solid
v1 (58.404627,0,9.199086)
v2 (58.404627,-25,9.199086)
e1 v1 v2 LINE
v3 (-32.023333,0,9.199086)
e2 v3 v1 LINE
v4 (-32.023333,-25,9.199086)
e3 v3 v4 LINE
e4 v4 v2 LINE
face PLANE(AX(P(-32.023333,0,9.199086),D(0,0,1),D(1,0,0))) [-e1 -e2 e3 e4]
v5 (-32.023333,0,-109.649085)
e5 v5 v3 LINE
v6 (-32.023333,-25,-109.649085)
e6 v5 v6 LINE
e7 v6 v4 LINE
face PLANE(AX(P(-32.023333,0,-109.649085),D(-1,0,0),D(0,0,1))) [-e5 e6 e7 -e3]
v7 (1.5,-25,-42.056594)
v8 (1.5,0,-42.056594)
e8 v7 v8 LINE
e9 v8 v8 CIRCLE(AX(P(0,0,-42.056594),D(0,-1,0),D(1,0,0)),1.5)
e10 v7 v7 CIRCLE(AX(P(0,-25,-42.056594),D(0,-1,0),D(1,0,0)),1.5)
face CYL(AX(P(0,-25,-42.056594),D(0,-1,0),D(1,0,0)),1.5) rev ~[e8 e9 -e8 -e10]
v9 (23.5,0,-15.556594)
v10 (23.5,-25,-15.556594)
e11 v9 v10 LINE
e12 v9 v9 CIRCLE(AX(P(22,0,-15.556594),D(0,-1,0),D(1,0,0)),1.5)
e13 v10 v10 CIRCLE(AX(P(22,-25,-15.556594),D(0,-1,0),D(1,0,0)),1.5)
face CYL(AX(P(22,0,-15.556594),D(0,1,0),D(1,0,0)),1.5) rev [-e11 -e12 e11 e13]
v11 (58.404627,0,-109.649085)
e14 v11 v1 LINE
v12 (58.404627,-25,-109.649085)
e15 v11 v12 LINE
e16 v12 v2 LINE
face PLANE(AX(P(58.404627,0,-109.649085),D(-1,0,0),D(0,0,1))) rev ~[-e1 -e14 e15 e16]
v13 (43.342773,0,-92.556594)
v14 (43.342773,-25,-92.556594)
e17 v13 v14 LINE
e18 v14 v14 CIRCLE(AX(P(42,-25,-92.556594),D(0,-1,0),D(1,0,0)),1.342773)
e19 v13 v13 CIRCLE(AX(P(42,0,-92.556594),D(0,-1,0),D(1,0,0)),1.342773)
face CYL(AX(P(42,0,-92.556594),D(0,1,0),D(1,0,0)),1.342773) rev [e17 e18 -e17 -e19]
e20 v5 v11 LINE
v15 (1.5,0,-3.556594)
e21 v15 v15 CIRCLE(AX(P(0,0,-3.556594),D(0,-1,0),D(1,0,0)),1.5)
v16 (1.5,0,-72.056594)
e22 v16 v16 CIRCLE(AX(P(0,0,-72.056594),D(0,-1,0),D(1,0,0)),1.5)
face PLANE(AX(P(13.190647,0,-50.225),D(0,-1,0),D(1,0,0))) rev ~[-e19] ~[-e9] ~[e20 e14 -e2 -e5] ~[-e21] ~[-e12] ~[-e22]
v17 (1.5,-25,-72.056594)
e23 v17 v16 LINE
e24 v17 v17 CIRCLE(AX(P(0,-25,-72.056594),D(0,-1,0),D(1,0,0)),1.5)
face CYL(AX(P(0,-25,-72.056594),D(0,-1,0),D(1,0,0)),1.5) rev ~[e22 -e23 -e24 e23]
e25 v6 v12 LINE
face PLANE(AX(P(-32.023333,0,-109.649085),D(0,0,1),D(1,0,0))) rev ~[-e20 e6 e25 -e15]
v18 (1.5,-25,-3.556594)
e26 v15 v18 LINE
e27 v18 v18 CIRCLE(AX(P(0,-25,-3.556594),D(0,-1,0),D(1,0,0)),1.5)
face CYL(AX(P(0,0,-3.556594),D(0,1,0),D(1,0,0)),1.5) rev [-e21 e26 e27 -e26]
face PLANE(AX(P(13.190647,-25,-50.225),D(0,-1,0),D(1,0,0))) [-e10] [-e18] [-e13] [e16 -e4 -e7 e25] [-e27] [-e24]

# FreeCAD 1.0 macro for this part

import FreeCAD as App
import Part
import Sketcher

doc = App.newDocument("Part")
body = doc.addObject("PartDesign::Body", "Body")

sketch1 = body.newObject("Sketcher::SketchObject", "Sketch")
sketch1.AttachmentSupport = (doc.getObject("XZ_Plane"), [""])
sketch1.MapMode = "FlatFace"
sketch1.addGeometry([
    Part.LineSegment(App.Vector(-32, 9.2, 0), App.Vector(-32, -109.6, 0)),
    Part.LineSegment(App.Vector(-32, -109.6, 0), App.Vector(58.4, -109.6, 0)),
    Part.LineSegment(App.Vector(58.4, -109.6, 0), App.Vector(58.4, 9.2, 0)),
    Part.LineSegment(App.Vector(58.4, 9.2, 0), App.Vector(-32, 9.2, 0)),
    Part.Circle(App.Vector(42, -92.6, 0), App.Vector(0, 0, 1), 1.3),
    Part.Circle(App.Vector(0, -3.6, 0), App.Vector(0, 0, 1), 1.5),
    Part.Circle(App.Vector(22, -15.6, 0), App.Vector(0, 0, 1), 1.5),
], False)
sketch1.addConstraint([
    Sketcher.Constraint("Coincident", 0, 2, 1, 1),
    Sketcher.Constraint("Coincident", 1, 2, 2, 1),
    Sketcher.Constraint("Coincident", 2, 2, 3, 1),
    Sketcher.Constraint("Coincident", 3, 2, 0, 1),
    Sketcher.Constraint("Vertical", 0),
    Sketcher.Constraint("Horizontal", 1),
    Sketcher.Constraint("Vertical", 2),
    Sketcher.Constraint("Horizontal", 3),
    Sketcher.Constraint("Equal", 5, 6),
    Sketcher.Constraint("PointOnObject", 5, 3, -2),
    Sketcher.Constraint("Diameter", 5, 3.0),
    Sketcher.Constraint("DistanceX", -1, 1, 4, 3, 42.0),
    Sketcher.Constraint("DistanceX", -1, 1, 6, 3, 22.0),
    Sketcher.Constraint("DistanceY", 4, 3, 5, 3, 89.0),
    Sketcher.Constraint("DistanceY", 6, 3, 5, 3, 12.0),
    Sketcher.Constraint("Diameter", 4, 2.685546),
    Sketcher.Constraint("DistanceX", 1, 1, 1, 2, 90.427961),
    Sketcher.Constraint("DistanceY", 0, 2, 0, 1, 118.848171),
    Sketcher.Constraint("DistanceY", 0, 2, 4, 3, 17.092491),
    Sketcher.Constraint("DistanceY", 4, 3, -1, 1, 92.556594),
    Sketcher.Constraint("DistanceX", 0, 2, -1, 1, 32.023333),
])
pad1 = body.newObject("PartDesign::Pad", "Pad")
pad1.Profile = sketch1
pad1.Length = 25

sketch2 = body.newObject("Sketcher::SketchObject", "Sketch001")
sketch2.AttachmentSupport = (doc.getObject("XZ_Plane"), [""])
sketch2.MapMode = "FlatFace"
sketch2.AttachmentOffset = App.Placement(App.Vector(0, 0, 25), App.Rotation())
sketch2.addGeometry([
    Part.Circle(App.Vector(0, -42.1, 0), App.Vector(0, 0, 1), 1.5),
    Part.Circle(App.Vector(0, -72.1, 0), App.Vector(0, 0, 1), 1.5),
], False)
sketch2.addConstraint([
    Sketcher.Constraint("Equal", 0, 1),
    Sketcher.Constraint("PointOnObject", 0, 3, -2),
    Sketcher.Constraint("PointOnObject", 1, 3, -2),
    Sketcher.Constraint("Diameter", 0, 3.0),
    Sketcher.Constraint("DistanceY", 1, 3, 0, 3, 30.0),
    Sketcher.Constraint("DistanceY", 0, 3, -1, 1, 42.056594),
])
pocket1 = body.newObject("PartDesign::Pocket", "Pocket")
pocket1.Profile = sketch2
pocket1.Length = 25

doc.recompute()
